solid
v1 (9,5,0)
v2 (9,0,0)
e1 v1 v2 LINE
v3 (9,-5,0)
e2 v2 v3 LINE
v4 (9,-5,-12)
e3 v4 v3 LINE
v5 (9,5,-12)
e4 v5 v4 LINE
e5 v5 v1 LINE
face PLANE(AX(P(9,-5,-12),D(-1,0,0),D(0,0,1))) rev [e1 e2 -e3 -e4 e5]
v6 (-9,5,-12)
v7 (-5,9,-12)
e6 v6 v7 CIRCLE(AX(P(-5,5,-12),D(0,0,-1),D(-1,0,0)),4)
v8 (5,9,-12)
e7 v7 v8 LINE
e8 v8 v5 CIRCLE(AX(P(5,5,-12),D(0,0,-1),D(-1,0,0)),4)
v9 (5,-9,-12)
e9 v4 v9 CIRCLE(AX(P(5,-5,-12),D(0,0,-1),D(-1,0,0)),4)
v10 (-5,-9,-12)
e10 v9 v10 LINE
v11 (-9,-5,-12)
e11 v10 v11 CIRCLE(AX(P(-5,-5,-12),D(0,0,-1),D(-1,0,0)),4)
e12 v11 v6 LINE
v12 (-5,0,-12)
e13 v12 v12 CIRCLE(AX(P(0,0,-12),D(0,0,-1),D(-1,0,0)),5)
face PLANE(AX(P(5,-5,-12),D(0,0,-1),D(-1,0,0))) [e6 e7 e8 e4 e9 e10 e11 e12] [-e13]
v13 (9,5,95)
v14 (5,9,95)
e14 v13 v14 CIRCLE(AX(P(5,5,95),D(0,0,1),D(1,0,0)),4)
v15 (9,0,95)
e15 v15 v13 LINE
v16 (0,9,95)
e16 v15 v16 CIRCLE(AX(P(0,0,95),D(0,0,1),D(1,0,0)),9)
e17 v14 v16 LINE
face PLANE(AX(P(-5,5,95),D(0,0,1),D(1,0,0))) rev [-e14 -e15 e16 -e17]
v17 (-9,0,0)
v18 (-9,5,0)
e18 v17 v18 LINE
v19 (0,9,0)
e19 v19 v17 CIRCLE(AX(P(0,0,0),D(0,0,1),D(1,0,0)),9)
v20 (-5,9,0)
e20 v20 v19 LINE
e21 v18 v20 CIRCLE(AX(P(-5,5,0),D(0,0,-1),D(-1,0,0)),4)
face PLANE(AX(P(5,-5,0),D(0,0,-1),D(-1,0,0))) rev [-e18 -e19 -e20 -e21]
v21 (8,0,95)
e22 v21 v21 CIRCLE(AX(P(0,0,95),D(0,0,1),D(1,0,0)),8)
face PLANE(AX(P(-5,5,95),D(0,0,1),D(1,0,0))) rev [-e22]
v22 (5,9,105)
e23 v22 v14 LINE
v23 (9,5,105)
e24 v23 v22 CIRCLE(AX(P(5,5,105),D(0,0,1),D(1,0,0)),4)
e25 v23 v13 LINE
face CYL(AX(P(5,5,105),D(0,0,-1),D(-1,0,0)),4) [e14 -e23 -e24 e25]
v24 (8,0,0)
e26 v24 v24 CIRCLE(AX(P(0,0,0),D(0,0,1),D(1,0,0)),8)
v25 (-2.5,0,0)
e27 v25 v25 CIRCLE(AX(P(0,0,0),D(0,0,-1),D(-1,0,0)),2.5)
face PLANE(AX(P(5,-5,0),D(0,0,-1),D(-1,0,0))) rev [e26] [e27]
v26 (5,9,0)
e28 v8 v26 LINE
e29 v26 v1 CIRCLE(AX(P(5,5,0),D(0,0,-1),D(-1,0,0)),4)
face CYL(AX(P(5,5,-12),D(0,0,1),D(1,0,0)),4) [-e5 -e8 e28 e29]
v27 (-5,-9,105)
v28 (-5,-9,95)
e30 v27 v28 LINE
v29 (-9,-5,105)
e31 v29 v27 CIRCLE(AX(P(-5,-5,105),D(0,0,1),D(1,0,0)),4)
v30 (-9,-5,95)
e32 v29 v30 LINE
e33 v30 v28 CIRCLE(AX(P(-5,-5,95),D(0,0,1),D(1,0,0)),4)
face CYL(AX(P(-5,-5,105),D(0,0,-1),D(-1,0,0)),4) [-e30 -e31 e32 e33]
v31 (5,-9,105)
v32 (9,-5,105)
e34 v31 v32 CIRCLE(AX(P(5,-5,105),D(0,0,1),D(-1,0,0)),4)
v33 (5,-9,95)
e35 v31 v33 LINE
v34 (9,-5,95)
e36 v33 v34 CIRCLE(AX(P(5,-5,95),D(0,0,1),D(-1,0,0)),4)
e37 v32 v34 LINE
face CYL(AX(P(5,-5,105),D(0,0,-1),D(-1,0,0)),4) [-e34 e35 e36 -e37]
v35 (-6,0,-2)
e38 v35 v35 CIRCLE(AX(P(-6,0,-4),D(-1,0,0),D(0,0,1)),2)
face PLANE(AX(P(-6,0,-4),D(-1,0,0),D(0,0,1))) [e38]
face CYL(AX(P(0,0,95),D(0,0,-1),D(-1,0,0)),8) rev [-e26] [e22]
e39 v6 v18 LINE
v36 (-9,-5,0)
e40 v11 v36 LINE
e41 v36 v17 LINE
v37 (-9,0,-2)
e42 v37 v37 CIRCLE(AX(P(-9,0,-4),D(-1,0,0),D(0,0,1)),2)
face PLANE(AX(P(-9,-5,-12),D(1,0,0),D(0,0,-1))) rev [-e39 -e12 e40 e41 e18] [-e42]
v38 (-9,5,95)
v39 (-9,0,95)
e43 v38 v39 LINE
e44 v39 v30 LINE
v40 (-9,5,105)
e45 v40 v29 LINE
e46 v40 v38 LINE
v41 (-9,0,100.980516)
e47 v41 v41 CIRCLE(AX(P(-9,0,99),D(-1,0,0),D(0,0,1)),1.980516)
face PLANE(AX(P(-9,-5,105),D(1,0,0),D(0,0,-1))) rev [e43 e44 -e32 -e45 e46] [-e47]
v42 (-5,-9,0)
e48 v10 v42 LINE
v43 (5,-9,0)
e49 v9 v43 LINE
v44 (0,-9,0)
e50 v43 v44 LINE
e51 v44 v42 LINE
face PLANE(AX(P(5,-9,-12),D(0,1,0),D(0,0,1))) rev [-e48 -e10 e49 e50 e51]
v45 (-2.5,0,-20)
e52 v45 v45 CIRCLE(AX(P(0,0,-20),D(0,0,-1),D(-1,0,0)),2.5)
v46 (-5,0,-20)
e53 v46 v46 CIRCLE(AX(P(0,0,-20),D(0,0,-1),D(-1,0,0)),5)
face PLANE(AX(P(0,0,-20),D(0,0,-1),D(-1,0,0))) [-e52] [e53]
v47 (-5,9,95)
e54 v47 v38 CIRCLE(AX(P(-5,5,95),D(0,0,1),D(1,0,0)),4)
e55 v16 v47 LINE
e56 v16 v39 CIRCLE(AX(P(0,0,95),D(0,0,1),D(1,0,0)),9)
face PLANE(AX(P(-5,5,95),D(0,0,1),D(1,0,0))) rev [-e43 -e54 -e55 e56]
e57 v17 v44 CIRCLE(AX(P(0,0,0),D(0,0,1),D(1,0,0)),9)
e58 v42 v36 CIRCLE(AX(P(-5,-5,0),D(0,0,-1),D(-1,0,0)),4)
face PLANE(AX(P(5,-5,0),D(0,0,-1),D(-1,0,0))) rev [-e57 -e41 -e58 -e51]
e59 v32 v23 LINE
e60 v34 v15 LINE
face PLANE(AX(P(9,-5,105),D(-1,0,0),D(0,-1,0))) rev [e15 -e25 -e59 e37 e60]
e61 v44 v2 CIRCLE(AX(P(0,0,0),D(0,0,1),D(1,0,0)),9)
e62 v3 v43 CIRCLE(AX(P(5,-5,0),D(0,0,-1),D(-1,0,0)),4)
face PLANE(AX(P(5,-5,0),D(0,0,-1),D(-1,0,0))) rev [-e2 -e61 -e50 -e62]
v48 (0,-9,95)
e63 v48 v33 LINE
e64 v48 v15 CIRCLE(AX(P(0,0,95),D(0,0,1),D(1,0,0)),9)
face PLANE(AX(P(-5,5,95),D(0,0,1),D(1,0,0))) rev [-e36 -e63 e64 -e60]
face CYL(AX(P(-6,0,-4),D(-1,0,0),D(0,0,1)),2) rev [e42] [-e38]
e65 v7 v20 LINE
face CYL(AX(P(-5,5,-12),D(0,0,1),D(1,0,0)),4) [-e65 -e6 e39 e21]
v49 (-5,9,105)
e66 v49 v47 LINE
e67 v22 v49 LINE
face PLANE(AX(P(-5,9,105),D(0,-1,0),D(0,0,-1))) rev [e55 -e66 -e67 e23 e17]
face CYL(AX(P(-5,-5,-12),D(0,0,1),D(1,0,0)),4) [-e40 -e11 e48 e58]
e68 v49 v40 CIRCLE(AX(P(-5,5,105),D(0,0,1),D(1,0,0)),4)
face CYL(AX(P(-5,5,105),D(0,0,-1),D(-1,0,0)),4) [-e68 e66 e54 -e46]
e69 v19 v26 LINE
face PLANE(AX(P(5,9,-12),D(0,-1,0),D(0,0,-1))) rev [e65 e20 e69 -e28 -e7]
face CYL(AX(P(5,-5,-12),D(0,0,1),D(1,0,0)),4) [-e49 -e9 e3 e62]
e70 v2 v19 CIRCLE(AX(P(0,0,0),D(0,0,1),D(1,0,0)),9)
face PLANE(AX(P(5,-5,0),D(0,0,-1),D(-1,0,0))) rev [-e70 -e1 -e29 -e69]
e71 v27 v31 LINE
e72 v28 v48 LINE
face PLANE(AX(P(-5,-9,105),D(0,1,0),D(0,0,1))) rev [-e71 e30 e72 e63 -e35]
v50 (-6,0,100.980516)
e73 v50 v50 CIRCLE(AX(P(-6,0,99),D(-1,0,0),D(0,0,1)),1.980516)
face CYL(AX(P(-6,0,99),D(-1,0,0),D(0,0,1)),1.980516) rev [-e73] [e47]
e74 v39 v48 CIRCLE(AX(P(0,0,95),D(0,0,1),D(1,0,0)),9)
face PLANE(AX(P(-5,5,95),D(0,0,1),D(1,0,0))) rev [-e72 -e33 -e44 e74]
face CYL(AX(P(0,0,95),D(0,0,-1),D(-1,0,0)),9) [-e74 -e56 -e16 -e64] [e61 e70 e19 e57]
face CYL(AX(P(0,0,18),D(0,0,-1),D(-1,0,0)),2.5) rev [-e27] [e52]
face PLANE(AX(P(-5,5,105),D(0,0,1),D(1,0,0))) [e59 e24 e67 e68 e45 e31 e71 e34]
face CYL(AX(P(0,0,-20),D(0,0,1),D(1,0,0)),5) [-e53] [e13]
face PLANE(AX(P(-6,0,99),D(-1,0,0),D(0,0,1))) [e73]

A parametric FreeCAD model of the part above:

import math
import FreeCAD as App
import Part
import Sketcher
from FreeCAD import Vector

doc = App.newDocument("Part")
body = doc.addObject("PartDesign::Body", "Body")

sketch1 = body.newObject("Sketcher::SketchObject", "Sketch")
sketch1.AttachmentSupport = (doc.getObject("XY_Plane"), [""])
sketch1.MapMode = "FlatFace"
sketch1.addGeometry([
    Part.Circle(Vector(0, 0, 0), Vector(0, 0, 1), 9),
    Part.Circle(Vector(0, 0, 0), Vector(0, 0, 1), 8),
], False)
sketch1.addConstraint([
    Sketcher.Constraint("Coincident", 0, 3, -1, 1),
    Sketcher.Constraint("Coincident", 1, 3, -1, 1),
    Sketcher.Constraint("Diameter", 0, 18.0),
    Sketcher.Constraint("Diameter", 1, 16.0),
])
pad1 = body.newObject("PartDesign::Pad", "Pad")
pad1.Profile = sketch1
pad1.Length = 95

sketch2 = body.newObject("Sketcher::SketchObject", "Sketch001")
sketch2.AttachmentSupport = (doc.getObject("XY_Plane"), [""])
sketch2.MapMode = "FlatFace"
sketch2.AttachmentOffset = App.Placement(Vector(0, 0, 95), App.Rotation())
sketch2.addGeometry([
    Part.LineSegment(Vector(-5, -9, 0), Vector(5, -9, 0)),
    Part.ArcOfCircle(Part.Circle(Vector(5, -5, 0), Vector(0, 0, 1), 4), math.radians(-90), math.radians(0)),
    Part.LineSegment(Vector(9, -5, 0), Vector(9, 5, 0)),
    Part.ArcOfCircle(Part.Circle(Vector(5, 5, 0), Vector(0, 0, 1), 4), math.radians(0), math.radians(90)),
    Part.LineSegment(Vector(5, 9, 0), Vector(-5, 9, 0)),
    Part.ArcOfCircle(Part.Circle(Vector(-5, 5, 0), Vector(0, 0, 1), 4), math.radians(90), math.radians(180)),
    Part.LineSegment(Vector(-9, 5, 0), Vector(-9, -5, 0)),
    Part.ArcOfCircle(Part.Circle(Vector(-5, -5, 0), Vector(0, 0, 1), 4), math.radians(180), math.radians(270)),
], False)
sketch2.addConstraint([
    Sketcher.Constraint("Tangent", 0, 2, 1, 1),
    Sketcher.Constraint("Tangent", 1, 2, 2, 1),
    Sketcher.Constraint("Tangent", 2, 2, 3, 1),
    Sketcher.Constraint("Tangent", 3, 2, 4, 1),
    Sketcher.Constraint("Tangent", 4, 2, 5, 1),
    Sketcher.Constraint("Tangent", 5, 2, 6, 1),
    Sketcher.Constraint("Tangent", 6, 2, 7, 1),
    Sketcher.Constraint("Tangent", 7, 2, 0, 1),
    Sketcher.Constraint("Horizontal", 0),
    Sketcher.Constraint("Vertical", 2),
    Sketcher.Constraint("Horizontal", 4),
    Sketcher.Constraint("Vertical", 6),
    Sketcher.Constraint("Equal", 1, 3),
    Sketcher.Constraint("Equal", 3, 5),
    Sketcher.Constraint("Equal", 5, 7),
    Sketcher.Constraint("Symmetric", 1, 3, 5, 3, -1, 1),
    Sketcher.Constraint("Equal", 4, 2),
    Sketcher.Constraint("Radius", 1, 4.0),
    Sketcher.Constraint("DistanceX", 0, 1, 0, 2, 10.0),
])
pad2 = body.newObject("PartDesign::Pad", "Pad001")
pad2.Profile = sketch2
pad2.Length = 10

sketch3 = body.newObject("Sketcher::SketchObject", "Sketch002")
sketch3.AttachmentSupport = (doc.getObject("XY_Plane"), [""])
sketch3.MapMode = "FlatFace"
sketch3.addGeometry([
    Part.LineSegment(Vector(5, -9, 0), Vector(-5, -9, 0)),
    Part.ArcOfCircle(Part.Circle(Vector(-5, -5, 0), Vector(0, 0, 1), 4), math.radians(180), math.radians(270)),
    Part.LineSegment(Vector(-9, -5, 0), Vector(-9, 5, 0)),
    Part.ArcOfCircle(Part.Circle(Vector(-5, 5, 0), Vector(0, 0, 1), 4), math.radians(90), math.radians(180)),
    Part.LineSegment(Vector(-5, 9, 0), Vector(5, 9, 0)),
    Part.ArcOfCircle(Part.Circle(Vector(5, 5, 0), Vector(0, 0, 1), 4), math.radians(0), math.radians(90)),
    Part.LineSegment(Vector(9, 5, 0), Vector(9, -5, 0)),
    Part.ArcOfCircle(Part.Circle(Vector(5, -5, 0), Vector(0, 0, 1), 4), math.radians(-90), math.radians(0)),
], False)
sketch3.addConstraint([
    Sketcher.Constraint("Tangent", 0, 2, 1, 2),
    Sketcher.Constraint("Tangent", 1, 1, 2, 1),
    Sketcher.Constraint("Tangent", 2, 2, 3, 2),
    Sketcher.Constraint("Tangent", 3, 1, 4, 1),
    Sketcher.Constraint("Tangent", 4, 2, 5, 2),
    Sketcher.Constraint("Tangent", 5, 1, 6, 1),
    Sketcher.Constraint("Tangent", 6, 2, 7, 2),
    Sketcher.Constraint("Tangent", 7, 1, 0, 1),
    Sketcher.Constraint("Horizontal", 0),
    Sketcher.Constraint("Vertical", 2),
    Sketcher.Constraint("Horizontal", 4),
    Sketcher.Constraint("Vertical", 6),
    Sketcher.Constraint("Equal", 1, 3),
    Sketcher.Constraint("Equal", 3, 5),
    Sketcher.Constraint("Equal", 5, 7),
    Sketcher.Constraint("Symmetric", 1, 3, 5, 3, -1, 1),
    Sketcher.Constraint("Equal", 4, 2),
    Sketcher.Constraint("Radius", 1, 4.0),
    Sketcher.Constraint("DistanceX", 0, 2, 0, 1, 10.0),
])
pad3 = body.newObject("PartDesign::Pad", "Pad002")
pad3.Profile = sketch3
pad3.Length = 12
pad3.Reversed = True

sketch4 = body.newObject("Sketcher::SketchObject", "Sketch003")
sketch4.AttachmentSupport = (doc.getObject("XY_Plane"), [""])
sketch4.MapMode = "FlatFace"
sketch4.AttachmentOffset = App.Placement(Vector(0, 0, -12), App.Rotation())
sketch4.addGeometry(Part.Circle(Vector(0, 0, 0), Vector(0, 0, 1), 5), False)
sketch4.addConstraint([
    Sketcher.Constraint("Coincident", 0, 3, -1, 1),
    Sketcher.Constraint("Diameter", 0, 10.0),
])
pad4 = body.newObject("PartDesign::Pad", "Pad003")
pad4.Profile = sketch4
pad4.Length = 8
pad4.Reversed = True

sketch5 = body.newObject("Sketcher::SketchObject", "Sketch004")
sketch5.AttachmentSupport = (doc.getObject("XY_Plane"), [""])
sketch5.MapMode = "FlatFace"
sketch5.AttachmentOffset = App.Placement(Vector(0, 0, -20), App.Rotation())
sketch5.addGeometry(Part.Circle(Vector(0, 0, 0), Vector(0, 0, 1), 2.5), False)
sketch5.addConstraint([
    Sketcher.Constraint("Coincident", 0, 3, -1, 1),
    Sketcher.Constraint("Diameter", 0, 5.0),
])
pocket1 = body.newObject("PartDesign::Pocket", "Pocket")
pocket1.Profile = sketch5
pocket1.Length = 38
pocket1.Reversed = True

sketch6 = body.newObject("Sketcher::SketchObject", "Sketch005")
sketch6.AttachmentSupport = (doc.getObject("YZ_Plane"), [""])
sketch6.MapMode = "FlatFace"
sketch6.AttachmentOffset = App.Placement(Vector(0, 0, -9), App.Rotation())
sketch6.addGeometry([
    Part.Circle(Vector(0, -4, 0), Vector(0, 0, 1), 2),
    Part.Circle(Vector(0, 99, 0), Vector(0, 0, 1), 1.980516),
], False)
sketch6.addConstraint([
    Sketcher.Constraint("PointOnObject", 0, 3, -2),
    Sketcher.Constraint("PointOnObject", 1, 3, -2),
    Sketcher.Constraint("Diameter", 0, 4.0),
    Sketcher.Constraint("DistanceY", 0, 3, -1, 1, 4.0),
    Sketcher.Constraint("DistanceY", -1, 1, 1, 3, 99.0),
    Sketcher.Constraint("Diameter", 1, 3.961033),
])
pocket2 = body.newObject("PartDesign::Pocket", "Pocket001")
pocket2.Profile = sketch6
pocket2.Length = 3
pocket2.Reversed = True

doc.recompute()
